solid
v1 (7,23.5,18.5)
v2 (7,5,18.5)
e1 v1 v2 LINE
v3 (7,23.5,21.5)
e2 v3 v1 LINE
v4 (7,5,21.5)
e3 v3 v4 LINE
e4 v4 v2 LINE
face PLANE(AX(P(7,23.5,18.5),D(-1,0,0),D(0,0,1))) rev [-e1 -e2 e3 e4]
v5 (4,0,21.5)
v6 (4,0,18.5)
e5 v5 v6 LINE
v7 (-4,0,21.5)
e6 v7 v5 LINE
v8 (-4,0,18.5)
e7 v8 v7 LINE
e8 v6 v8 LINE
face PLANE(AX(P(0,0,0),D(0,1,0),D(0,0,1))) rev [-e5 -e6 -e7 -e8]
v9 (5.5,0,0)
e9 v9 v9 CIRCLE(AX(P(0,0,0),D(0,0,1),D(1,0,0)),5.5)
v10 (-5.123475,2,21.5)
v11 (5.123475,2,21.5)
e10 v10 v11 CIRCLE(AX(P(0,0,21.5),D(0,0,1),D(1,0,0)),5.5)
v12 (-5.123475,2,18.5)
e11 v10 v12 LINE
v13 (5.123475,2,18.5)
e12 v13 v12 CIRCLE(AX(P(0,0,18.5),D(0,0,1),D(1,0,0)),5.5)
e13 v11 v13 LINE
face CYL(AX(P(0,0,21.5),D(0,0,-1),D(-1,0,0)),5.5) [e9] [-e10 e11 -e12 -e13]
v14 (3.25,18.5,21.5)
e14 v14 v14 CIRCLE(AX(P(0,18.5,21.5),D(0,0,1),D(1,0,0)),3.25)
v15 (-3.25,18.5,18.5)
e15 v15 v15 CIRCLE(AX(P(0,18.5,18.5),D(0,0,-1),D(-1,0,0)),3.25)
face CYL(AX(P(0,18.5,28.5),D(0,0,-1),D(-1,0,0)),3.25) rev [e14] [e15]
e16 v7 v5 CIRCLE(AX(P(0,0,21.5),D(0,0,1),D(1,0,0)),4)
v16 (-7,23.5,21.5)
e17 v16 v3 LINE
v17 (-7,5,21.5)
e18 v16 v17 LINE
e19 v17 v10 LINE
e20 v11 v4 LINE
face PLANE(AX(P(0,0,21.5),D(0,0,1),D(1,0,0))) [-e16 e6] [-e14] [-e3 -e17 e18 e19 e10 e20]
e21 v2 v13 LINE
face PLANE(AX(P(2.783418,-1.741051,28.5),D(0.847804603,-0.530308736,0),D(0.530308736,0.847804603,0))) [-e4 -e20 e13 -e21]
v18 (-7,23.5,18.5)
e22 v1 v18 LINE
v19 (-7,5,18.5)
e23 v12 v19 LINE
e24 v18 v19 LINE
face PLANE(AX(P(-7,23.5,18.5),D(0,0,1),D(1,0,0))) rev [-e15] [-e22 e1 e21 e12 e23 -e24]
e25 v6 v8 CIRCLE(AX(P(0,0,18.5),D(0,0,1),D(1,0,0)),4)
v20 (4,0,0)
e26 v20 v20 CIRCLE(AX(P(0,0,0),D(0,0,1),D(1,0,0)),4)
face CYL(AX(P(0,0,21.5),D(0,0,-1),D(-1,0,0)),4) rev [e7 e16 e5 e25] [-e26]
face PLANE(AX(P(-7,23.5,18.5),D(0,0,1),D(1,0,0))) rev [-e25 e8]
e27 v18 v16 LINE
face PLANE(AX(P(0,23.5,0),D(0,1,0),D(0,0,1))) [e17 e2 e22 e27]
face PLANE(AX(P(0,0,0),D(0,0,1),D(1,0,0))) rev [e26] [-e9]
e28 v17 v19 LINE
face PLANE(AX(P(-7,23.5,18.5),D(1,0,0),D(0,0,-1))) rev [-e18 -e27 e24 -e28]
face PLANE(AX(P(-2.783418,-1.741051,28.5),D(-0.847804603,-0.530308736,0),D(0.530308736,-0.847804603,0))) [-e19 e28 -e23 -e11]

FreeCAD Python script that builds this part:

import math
import FreeCAD as App
import Part
import Sketcher
from FreeCAD import Vector
Q = App.Units.Quantity

doc = App.newDocument("Part")
params = doc.addObject("Spreadsheet::Sheet", "Params")
for row, (alias, value) in enumerate([
    ("sketch1_diameter", "11 mm"),
    ("sketch1_diameter2", "8 mm"),
    ("pad1_length", "21.5 mm"),
    ("sketch2_width", "14 mm"),
    ("sketch2_height", "3 mm"),
    ("pad2_length", "23.5 mm"),
    ("sketch3_diameter", "6.5 mm"),
    ("sketch3_radius", "5.5 mm"),
    ("sketch3_height", "5 mm"),
    ("sketch3_width", "1.5 mm"),
    ("pocket1_length", "10 mm"),
], start=1):
    params.set(f"A{row}", alias)
    params.set(f"B{row}", "=" + value)
    params.setAlias(f"B{row}", alias)

body = doc.addObject("PartDesign::Body", "Body")

sketch1 = body.newObject("Sketcher::SketchObject", "Sketch")
sketch1.AttachmentSupport = (doc.getObject("XY_Plane"), [""])
sketch1.MapMode = "FlatFace"
sketch1.addGeometry([
    Part.Circle(Vector(0, 0, 0), Vector(0, 0, 1), 5.5),
    Part.Circle(Vector(0, 0, 0), Vector(0, 0, 1), 4),
], False)
sketch1.addConstraint([
    Sketcher.Constraint("Coincident", 0, 3, -1, 1),
    Sketcher.Constraint("Coincident", 1, 3, -1, 1),
    Sketcher.Constraint("Diameter", 0, Q("11 mm")),
    Sketcher.Constraint("Diameter", 1, Q("8 mm")),
])
sketch1.setExpression("Constraints[2]", "Params.sketch1_diameter")
sketch1.setExpression("Constraints[3]", "Params.sketch1_diameter2")
pad1 = body.newObject("PartDesign::Pad", "Pad")
pad1.Profile = sketch1
pad1.setExpression("Length", "Params.pad1_length")

sketch2 = body.newObject("Sketcher::SketchObject", "Sketch001")
sketch2.AttachmentSupport = (doc.getObject("XZ_Plane"), [""])
sketch2.MapMode = "FlatFace"
sketch2.addGeometry([
    Part.LineSegment(Vector(-7, 18.5, 0), Vector(-7, 21.5, 0)),
    Part.LineSegment(Vector(-7, 21.5, 0), Vector(7, 21.5, 0)),
    Part.LineSegment(Vector(7, 21.5, 0), Vector(7, 18.5, 0)),
    Part.LineSegment(Vector(7, 18.5, 0), Vector(-7, 18.5, 0)),
], False)
sketch2.addConstraint([
    Sketcher.Constraint("Coincident", 0, 2, 1, 1),
    Sketcher.Constraint("Coincident", 1, 2, 2, 1),
    Sketcher.Constraint("Coincident", 2, 2, 3, 1),
    Sketcher.Constraint("Coincident", 3, 2, 0, 1),
    Sketcher.Constraint("Vertical", 0),
    Sketcher.Constraint("Horizontal", 1),
    Sketcher.Constraint("Vertical", 2),
    Sketcher.Constraint("Horizontal", 3),
    Sketcher.Constraint("DistanceX", 1, 1, 1, 2, Q("14 mm")),
    Sketcher.Constraint("DistanceY", 0, 1, 0, 2, Q("3 mm")),
    Sketcher.Constraint("DistanceX", 0, 2, -1, 1, Q("7 mm")),
    Sketcher.Constraint("DistanceY", -1, 1, 0, 2, Q("21.5 mm")),
])
sketch2.setExpression("Constraints[8]", "Params.sketch2_width")
sketch2.setExpression("Constraints[9]", "Params.sketch2_height")
pad2 = body.newObject("PartDesign::Pad", "Pad001")
pad2.Profile = sketch2
pad2.setExpression("Length", "Params.pad2_length")
pad2.Reversed = True

sketch3 = body.newObject("Sketcher::SketchObject", "Sketch002")
sketch3.AttachmentSupport = (doc.getObject("XY_Plane"), [""])
sketch3.MapMode = "FlatFace"
sketch3.AttachmentOffset = App.Placement(Vector(0, 0, 18.5), App.Rotation())
sketch3.addGeometry([
    Part.Circle(Vector(0, 18.5, 0), Vector(0, 0, 1), 3.2),
    Part.LineSegment(Vector(5.1, 2, 0), Vector(7, 5, 0)),
    Part.LineSegment(Vector(7, 5, 0), Vector(7, 0, 0)),
    Part.LineSegment(Vector(7, 0, 0), Vector(5.5, 0, 0)),
    Part.ArcOfCircle(Part.Circle(Vector(0, 0, 0), Vector(0, 0, 1), 5.5), math.radians(0), math.radians(21)),
    Part.LineSegment(Vector(-7, 5, 0), Vector(-5.1, 2, 0)),
    Part.ArcOfCircle(Part.Circle(Vector(0, 0, 0), Vector(0, 0, 1), 5.5), math.radians(159), math.radians(180)),
    Part.LineSegment(Vector(-5.5, 0, 0), Vector(-7, 0, 0)),
    Part.LineSegment(Vector(-7, 0, 0), Vector(-7, 5, 0)),
], False)
sketch3.addConstraint([
    Sketcher.Constraint("Coincident", 1, 2, 2, 1),
    Sketcher.Constraint("Coincident", 2, 2, 3, 1),
    Sketcher.Constraint("Coincident", 3, 2, 4, 1),
    Sketcher.Constraint("Coincident", 4, 2, 1, 1),
    Sketcher.Constraint("Coincident", 5, 2, 6, 1),
    Sketcher.Constraint("Coincident", 6, 2, 7, 1),
    Sketcher.Constraint("Coincident", 7, 2, 8, 1),
    Sketcher.Constraint("Coincident", 8, 2, 5, 1),
    Sketcher.Constraint("Vertical", 2),
    Sketcher.Constraint("Horizontal", 3),
    Sketcher.Constraint("Horizontal", 7),
    Sketcher.Constraint("Vertical", 8),
    Sketcher.Constraint("Coincident", 4, 3, -1, 1),
    Sketcher.Constraint("Coincident", 6, 3, -1, 1),
    Sketcher.Constraint("Equal", 4, 6),
    Sketcher.Constraint("Symmetric", 2, 2, 7, 2, -1, 1),
    Sketcher.Constraint("PointOnObject", 0, 3, -2),
    Sketcher.Constraint("PointOnObject", 2, 2, -1),
    Sketcher.Constraint("Horizontal", 4, 2, 5, 2),
    Sketcher.Constraint("Horizontal", 1, 2, 8, 2),
    Sketcher.Constraint("Diameter", 0, Q("6.5 mm")),
    Sketcher.Constraint("Radius", 4, Q("5.5 mm")),
    Sketcher.Constraint("DistanceY", 2, 2, 2, 1, Q("5 mm")),
    Sketcher.Constraint("DistanceX", 3, 2, 3, 1, Q("1.5 mm")),
    Sketcher.Constraint("DistanceY", -1, 1, 4, 2, Q("2 mm")),
    Sketcher.Constraint("DistanceY", -1, 1, 0, 3, Q("18.5 mm")),
])
sketch3.setExpression("Constraints[20]", "Params.sketch3_diameter")
sketch3.setExpression("Constraints[21]", "Params.sketch3_radius")
sketch3.setExpression("Constraints[22]", "Params.sketch3_height")
sketch3.setExpression("Constraints[23]", "Params.sketch3_width")
pocket1 = body.newObject("PartDesign::Pocket", "Pocket")
pocket1.Profile = sketch3
pocket1.setExpression("Length", "Params.pocket1_length")
pocket1.Reversed = True

doc.recompute()
